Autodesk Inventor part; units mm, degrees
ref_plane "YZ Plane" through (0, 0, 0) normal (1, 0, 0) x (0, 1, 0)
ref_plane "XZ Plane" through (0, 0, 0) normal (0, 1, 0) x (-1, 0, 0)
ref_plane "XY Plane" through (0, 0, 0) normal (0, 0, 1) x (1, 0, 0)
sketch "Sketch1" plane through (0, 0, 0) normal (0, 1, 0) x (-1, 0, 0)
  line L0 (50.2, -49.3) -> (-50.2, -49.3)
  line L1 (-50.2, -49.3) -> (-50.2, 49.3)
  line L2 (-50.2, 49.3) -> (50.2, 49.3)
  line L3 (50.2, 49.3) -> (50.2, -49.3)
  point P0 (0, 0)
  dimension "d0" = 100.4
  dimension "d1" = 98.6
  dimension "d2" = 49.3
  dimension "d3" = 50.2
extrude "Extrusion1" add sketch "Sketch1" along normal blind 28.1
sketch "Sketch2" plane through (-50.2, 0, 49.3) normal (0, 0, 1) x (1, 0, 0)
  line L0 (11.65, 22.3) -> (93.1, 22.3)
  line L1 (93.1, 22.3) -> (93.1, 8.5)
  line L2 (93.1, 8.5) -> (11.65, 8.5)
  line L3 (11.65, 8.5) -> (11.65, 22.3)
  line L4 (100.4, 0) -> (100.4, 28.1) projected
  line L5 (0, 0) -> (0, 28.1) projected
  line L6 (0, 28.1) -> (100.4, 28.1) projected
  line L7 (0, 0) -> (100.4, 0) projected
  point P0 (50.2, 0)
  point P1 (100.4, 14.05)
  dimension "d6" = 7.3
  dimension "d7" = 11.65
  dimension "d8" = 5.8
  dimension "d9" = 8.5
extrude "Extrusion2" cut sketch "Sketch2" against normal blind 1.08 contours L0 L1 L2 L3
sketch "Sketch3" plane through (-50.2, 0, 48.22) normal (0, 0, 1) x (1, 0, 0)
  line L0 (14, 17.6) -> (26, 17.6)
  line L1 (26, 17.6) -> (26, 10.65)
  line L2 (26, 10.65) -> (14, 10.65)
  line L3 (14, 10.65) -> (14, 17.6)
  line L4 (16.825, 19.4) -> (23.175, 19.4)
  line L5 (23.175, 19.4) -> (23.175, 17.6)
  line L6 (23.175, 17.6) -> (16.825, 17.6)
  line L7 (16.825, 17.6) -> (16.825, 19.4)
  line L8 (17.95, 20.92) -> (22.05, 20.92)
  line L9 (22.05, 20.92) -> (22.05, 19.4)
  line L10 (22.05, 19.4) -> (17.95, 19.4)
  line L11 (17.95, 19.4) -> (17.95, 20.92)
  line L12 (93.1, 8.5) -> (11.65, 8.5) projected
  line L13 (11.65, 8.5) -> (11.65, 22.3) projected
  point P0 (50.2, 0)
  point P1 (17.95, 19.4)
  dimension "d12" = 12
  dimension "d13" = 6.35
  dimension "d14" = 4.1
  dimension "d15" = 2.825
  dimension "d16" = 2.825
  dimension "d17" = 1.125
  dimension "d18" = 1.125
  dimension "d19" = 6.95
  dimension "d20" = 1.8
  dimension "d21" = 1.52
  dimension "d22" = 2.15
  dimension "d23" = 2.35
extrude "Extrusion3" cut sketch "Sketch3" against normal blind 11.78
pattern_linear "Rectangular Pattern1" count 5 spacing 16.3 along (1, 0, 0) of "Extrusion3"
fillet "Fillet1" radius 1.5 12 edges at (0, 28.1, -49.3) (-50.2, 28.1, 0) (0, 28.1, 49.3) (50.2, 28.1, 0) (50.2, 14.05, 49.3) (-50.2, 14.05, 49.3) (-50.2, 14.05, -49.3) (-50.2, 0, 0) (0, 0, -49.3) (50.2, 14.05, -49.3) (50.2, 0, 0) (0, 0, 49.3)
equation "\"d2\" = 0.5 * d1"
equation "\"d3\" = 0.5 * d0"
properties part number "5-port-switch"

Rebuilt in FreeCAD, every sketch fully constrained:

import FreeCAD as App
import Part
import Sketcher


def edges_at(feature, points):
    """Names of the edges that pass closest to the given points."""
    edges = feature.Shape.Edges
    near = lambda p: min(range(len(edges)), key=lambda i: edges[i].distToShape(Part.Vertex(*p))[0])
    return sorted({f"Edge{near(p) + 1}" for p in points})


def add_polygon(sketch, points):
    """Adds a closed chain of lines whose ends are joined by coincident constraints."""
    first, n = sketch.GeometryCount, len(points)
    for a, b in zip(points, points[1:] + points[:1]):
        sketch.addGeometry(Part.LineSegment(App.Vector(*a, 0), App.Vector(*b, 0)), False)
    for i in range(n):
        sketch.addConstraint(Sketcher.Constraint("Coincident", first + i, 2, first + (i + 1) % n, 1))

doc = App.newDocument("Part")
body = doc.addObject("PartDesign::Body", "Body")

sketch1 = body.newObject("Sketcher::SketchObject", "Sketch")
sketch1.AttachmentSupport = (doc.getObject("XZ_Plane"), [""])
sketch1.MapMode = "FlatFace"
add_polygon(sketch1, [(50, -49), (-50, -49), (-50, 49), (50, 49)])
sketch1.addConstraint(Sketcher.Constraint("Horizontal", 0))
sketch1.addConstraint(Sketcher.Constraint("Vertical", 1))
sketch1.addConstraint(Sketcher.Constraint("Horizontal", 2))
sketch1.addConstraint(Sketcher.Constraint("Vertical", 3))
sketch1.addConstraint(Sketcher.Constraint("Symmetric", 0, 2, 2, 2, -1, 1))
sketch1.addConstraint(Sketcher.Constraint("DistanceX", 0, 2, 0, 1, 100.4))
sketch1.addConstraint(Sketcher.Constraint("DistanceY", 1, 1, 1, 2, 98.6))
pad1 = body.newObject("PartDesign::Pad", "Pad")
pad1.Profile = sketch1
pad1.Length = 28.1
pad1.Reversed = True

sketch2 = body.newObject("Sketcher::SketchObject", "Sketch001")
sketch2.AttachmentSupport = (doc.getObject("XY_Plane"), [""])
sketch2.MapMode = "FlatFace"
sketch2.AttachmentOffset = App.Placement(App.Vector(0, 0, 49.3), App.Rotation())
add_polygon(sketch2, [(43, 22), (-39, 22), (-39, 8), (43, 8)])
sketch2.addConstraint(Sketcher.Constraint("Horizontal", 0))
sketch2.addConstraint(Sketcher.Constraint("Vertical", 1))
sketch2.addConstraint(Sketcher.Constraint("Horizontal", 2))
sketch2.addConstraint(Sketcher.Constraint("Vertical", 3))
sketch2.addConstraint(Sketcher.Constraint("DistanceY", -1, 1, 1, 2, 8.5))
sketch2.addConstraint(Sketcher.Constraint("DistanceY", 1, 2, 1, 1, 13.8))
sketch2.addConstraint(Sketcher.Constraint("DistanceX", 0, 2, 0, 1, 81.45))
sketch2.addConstraint(Sketcher.Constraint("DistanceX", -1, 1, 2, 2, 42.9))
pocket1 = body.newObject("PartDesign::Pocket", "Pocket")
pocket1.Profile = sketch2
pocket1.Length = 1.08

sketch3 = body.newObject("Sketcher::SketchObject", "Sketch002")
sketch3.AttachmentSupport = (doc.getObject("XY_Plane"), [""])
sketch3.MapMode = "FlatFace"
sketch3.AttachmentOffset = App.Placement(App.Vector(0, 0, 48.22), App.Rotation())
add_polygon(sketch3, [(-33.4, 17.6), (-36.2, 17.6), (-36.2, 10.7), (-24.2, 10.7), (-24.2, 17.6), (-27, 17.6), (-27, 19.4), (-28.1, 19.4), (-28.1, 20.9), (-32.2, 20.9), (-32.2, 19.4), (-33.4, 19.4)])
sketch3.addConstraint(Sketcher.Constraint("Horizontal", 0))
sketch3.addConstraint(Sketcher.Constraint("Vertical", 1))
sketch3.addConstraint(Sketcher.Constraint("Horizontal", 2))
sketch3.addConstraint(Sketcher.Constraint("Vertical", 3))
sketch3.addConstraint(Sketcher.Constraint("Horizontal", 4))
sketch3.addConstraint(Sketcher.Constraint("Vertical", 5))
sketch3.addConstraint(Sketcher.Constraint("Horizontal", 6))
sketch3.addConstraint(Sketcher.Constraint("Vertical", 7))
sketch3.addConstraint(Sketcher.Constraint("Horizontal", 8))
sketch3.addConstraint(Sketcher.Constraint("Vertical", 9))
sketch3.addConstraint(Sketcher.Constraint("Horizontal", 10))
sketch3.addConstraint(Sketcher.Constraint("Vertical", 11))
sketch3.addConstraint(Sketcher.Constraint("Horizontal", 0, 2, 3, 2))
sketch3.addConstraint(Sketcher.Constraint("Horizontal", 6, 2, 9, 2))
sketch3.addConstraint(Sketcher.Constraint("Equal", 0, 4))
sketch3.addConstraint(Sketcher.Constraint("Equal", 6, 10))
sketch3.addConstraint(Sketcher.Constraint("DistanceX", 2, 1, 2, 2, 12.0))
sketch3.addConstraint(Sketcher.Constraint("DistanceX", 8, 2, 8, 1, 4.1))
sketch3.addConstraint(Sketcher.Constraint("DistanceY", 5, 1, 5, 2, 1.8))
sketch3.addConstraint(Sketcher.Constraint("DistanceY", 1, 2, 1, 1, 6.95))
sketch3.addConstraint(Sketcher.Constraint("DistanceY", 7, 1, 7, 2, 1.52))
sketch3.addConstraint(Sketcher.Constraint("DistanceX", 0, 2, 0, 1, 2.825))
sketch3.addConstraint(Sketcher.Constraint("DistanceX", 0, 2, -1, 1, 36.2))
sketch3.addConstraint(Sketcher.Constraint("DistanceY", -1, 1, 0, 2, 17.6))
pocket2 = body.newObject("PartDesign::Pocket", "Pocket001")
pocket2.Profile = sketch3
pocket2.Length = 11.78
doc.recompute()

linearpattern = body.newObject("PartDesign::LinearPattern", "LinearPattern")
linearpattern.Originals = [pocket2]
linearpattern.Direction = (doc.getObject("X_Axis"), [""])
linearpattern.Mode = "offset"
linearpattern.Offset = 16.3
linearpattern.Occurrences = 5
body.Tip = linearpattern
doc.recompute()

fillet = body.newObject("PartDesign::Fillet", "Fillet")
fillet.Base = (linearpattern, edges_at(linearpattern, [
    (0, 28.1, -49.3),
    (-50.2, 28.1, 0),
    (0, 28.1, 49.3),
    (50.2, 28.1, 0),
    (50.2, 14.05, 49.3),
    (-50.2, 14.05, 49.3),
    (-50.2, 14.05, -49.3),
    (-50.2, 0, 0),
    (0, 0, -49.3),
    (50.2, 14.05, -49.3),
    (50.2, 0, 0),
    (0, 0, 49.3),
]))
fillet.Radius = 1.5

doc.recompute()
